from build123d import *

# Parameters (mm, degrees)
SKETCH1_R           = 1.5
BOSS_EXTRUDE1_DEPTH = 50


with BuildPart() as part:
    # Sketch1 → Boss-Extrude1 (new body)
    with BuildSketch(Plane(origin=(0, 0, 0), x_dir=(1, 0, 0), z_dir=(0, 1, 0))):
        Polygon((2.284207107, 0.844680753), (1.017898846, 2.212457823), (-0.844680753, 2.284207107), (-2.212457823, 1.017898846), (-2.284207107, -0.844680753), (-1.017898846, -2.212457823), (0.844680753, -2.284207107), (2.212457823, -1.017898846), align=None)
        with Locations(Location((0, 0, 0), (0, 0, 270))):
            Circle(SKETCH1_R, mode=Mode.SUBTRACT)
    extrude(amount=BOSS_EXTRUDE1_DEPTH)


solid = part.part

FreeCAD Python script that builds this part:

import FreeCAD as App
import Part
import Sketcher

V = App.Vector
Q = App.Units.Quantity

doc = App.newDocument("Part")
body = doc.addObject("PartDesign::Body", "Body")

# Sketch on XZ plane
sketch1 = doc.addObject("Sketcher::SketchObject", "Sketch")
body.addObject(sketch1)
sketch1.AttachmentSupport = (doc.XZ_Plane, [""])
sketch1.MapMode = "FlatFace"
sketch1.addGeometry([
    Part.LineSegment(V(2.284207, -0.844681, 0), V(1.017899, -2.212458, 0)),  # 0
    Part.LineSegment(V(1.017899, -2.212458, 0), V(-0.844681, -2.284207, 0)),  # 1
    Part.LineSegment(V(-0.844681, -2.284207, 0), V(-2.212458, -1.017899, 0)),  # 2
    Part.LineSegment(V(-2.212458, -1.017899, 0), V(-2.284207, 0.844681, 0)),  # 3
    Part.LineSegment(V(-2.284207, 0.844681, 0), V(-1.017899, 2.212458, 0)),  # 4
    Part.LineSegment(V(-1.017899, 2.212458, 0), V(0.844681, 2.284207, 0)),  # 5
    Part.LineSegment(V(0.844681, 2.284207, 0), V(2.212458, 1.017899, 0)),  # 6
    Part.LineSegment(V(2.212458, 1.017899, 0), V(2.284207, -0.844681, 0)),  # 7
    Part.Circle(V(0, 0, 0), V(0, 0, 1), 1.5),  # 8
], False)
sketch1.addConstraint([
    Sketcher.Constraint("Coincident", 0, 2, 1, 1),
    Sketcher.Constraint("Coincident", 1, 2, 2, 1),
    Sketcher.Constraint("Coincident", 2, 2, 3, 1),
    Sketcher.Constraint("Coincident", 3, 2, 4, 1),
    Sketcher.Constraint("Coincident", 4, 2, 5, 1),
    Sketcher.Constraint("Coincident", 5, 2, 6, 1),
    Sketcher.Constraint("Coincident", 6, 2, 7, 1),
    Sketcher.Constraint("Coincident", 7, 2, 0, 1),
    Sketcher.Constraint("Coincident", 8, 3, -1, 1),
    Sketcher.Constraint("Symmetric", 0, 2, 4, 2, -1, 1),
    Sketcher.Constraint("Symmetric", 1, 2, 5, 2, -1, 1),
    Sketcher.Constraint("Symmetric", 2, 2, 6, 2, -1, 1),
    Sketcher.Constraint("Symmetric", 3, 2, 7, 2, -1, 1),
    Sketcher.Constraint("Perpendicular", 0, 2),
    Sketcher.Constraint("Perpendicular", 1, 3),
    Sketcher.Constraint("Equal", 0, 1),
    Sketcher.Constraint("Equal", 1, 2),
    Sketcher.Constraint("Equal", 2, 3),
    Sketcher.Constraint("Diameter", 8, Q("3 mm")),
    Sketcher.Constraint("DistanceX", -1, 1, 0, 2, Q("1.017899 mm")),
    Sketcher.Constraint("Distance", 0, Q("1.863961 mm")),
    Sketcher.Constraint("DistanceX", 1, 2, -1, 1, Q("0.844681 mm")),
])
pad1 = doc.addObject("PartDesign::Pad", "Pad")
body.addObject(pad1)
pad1.Profile = sketch1
pad1.Length = 50
pad1.Reversed = True

doc.recompute()
